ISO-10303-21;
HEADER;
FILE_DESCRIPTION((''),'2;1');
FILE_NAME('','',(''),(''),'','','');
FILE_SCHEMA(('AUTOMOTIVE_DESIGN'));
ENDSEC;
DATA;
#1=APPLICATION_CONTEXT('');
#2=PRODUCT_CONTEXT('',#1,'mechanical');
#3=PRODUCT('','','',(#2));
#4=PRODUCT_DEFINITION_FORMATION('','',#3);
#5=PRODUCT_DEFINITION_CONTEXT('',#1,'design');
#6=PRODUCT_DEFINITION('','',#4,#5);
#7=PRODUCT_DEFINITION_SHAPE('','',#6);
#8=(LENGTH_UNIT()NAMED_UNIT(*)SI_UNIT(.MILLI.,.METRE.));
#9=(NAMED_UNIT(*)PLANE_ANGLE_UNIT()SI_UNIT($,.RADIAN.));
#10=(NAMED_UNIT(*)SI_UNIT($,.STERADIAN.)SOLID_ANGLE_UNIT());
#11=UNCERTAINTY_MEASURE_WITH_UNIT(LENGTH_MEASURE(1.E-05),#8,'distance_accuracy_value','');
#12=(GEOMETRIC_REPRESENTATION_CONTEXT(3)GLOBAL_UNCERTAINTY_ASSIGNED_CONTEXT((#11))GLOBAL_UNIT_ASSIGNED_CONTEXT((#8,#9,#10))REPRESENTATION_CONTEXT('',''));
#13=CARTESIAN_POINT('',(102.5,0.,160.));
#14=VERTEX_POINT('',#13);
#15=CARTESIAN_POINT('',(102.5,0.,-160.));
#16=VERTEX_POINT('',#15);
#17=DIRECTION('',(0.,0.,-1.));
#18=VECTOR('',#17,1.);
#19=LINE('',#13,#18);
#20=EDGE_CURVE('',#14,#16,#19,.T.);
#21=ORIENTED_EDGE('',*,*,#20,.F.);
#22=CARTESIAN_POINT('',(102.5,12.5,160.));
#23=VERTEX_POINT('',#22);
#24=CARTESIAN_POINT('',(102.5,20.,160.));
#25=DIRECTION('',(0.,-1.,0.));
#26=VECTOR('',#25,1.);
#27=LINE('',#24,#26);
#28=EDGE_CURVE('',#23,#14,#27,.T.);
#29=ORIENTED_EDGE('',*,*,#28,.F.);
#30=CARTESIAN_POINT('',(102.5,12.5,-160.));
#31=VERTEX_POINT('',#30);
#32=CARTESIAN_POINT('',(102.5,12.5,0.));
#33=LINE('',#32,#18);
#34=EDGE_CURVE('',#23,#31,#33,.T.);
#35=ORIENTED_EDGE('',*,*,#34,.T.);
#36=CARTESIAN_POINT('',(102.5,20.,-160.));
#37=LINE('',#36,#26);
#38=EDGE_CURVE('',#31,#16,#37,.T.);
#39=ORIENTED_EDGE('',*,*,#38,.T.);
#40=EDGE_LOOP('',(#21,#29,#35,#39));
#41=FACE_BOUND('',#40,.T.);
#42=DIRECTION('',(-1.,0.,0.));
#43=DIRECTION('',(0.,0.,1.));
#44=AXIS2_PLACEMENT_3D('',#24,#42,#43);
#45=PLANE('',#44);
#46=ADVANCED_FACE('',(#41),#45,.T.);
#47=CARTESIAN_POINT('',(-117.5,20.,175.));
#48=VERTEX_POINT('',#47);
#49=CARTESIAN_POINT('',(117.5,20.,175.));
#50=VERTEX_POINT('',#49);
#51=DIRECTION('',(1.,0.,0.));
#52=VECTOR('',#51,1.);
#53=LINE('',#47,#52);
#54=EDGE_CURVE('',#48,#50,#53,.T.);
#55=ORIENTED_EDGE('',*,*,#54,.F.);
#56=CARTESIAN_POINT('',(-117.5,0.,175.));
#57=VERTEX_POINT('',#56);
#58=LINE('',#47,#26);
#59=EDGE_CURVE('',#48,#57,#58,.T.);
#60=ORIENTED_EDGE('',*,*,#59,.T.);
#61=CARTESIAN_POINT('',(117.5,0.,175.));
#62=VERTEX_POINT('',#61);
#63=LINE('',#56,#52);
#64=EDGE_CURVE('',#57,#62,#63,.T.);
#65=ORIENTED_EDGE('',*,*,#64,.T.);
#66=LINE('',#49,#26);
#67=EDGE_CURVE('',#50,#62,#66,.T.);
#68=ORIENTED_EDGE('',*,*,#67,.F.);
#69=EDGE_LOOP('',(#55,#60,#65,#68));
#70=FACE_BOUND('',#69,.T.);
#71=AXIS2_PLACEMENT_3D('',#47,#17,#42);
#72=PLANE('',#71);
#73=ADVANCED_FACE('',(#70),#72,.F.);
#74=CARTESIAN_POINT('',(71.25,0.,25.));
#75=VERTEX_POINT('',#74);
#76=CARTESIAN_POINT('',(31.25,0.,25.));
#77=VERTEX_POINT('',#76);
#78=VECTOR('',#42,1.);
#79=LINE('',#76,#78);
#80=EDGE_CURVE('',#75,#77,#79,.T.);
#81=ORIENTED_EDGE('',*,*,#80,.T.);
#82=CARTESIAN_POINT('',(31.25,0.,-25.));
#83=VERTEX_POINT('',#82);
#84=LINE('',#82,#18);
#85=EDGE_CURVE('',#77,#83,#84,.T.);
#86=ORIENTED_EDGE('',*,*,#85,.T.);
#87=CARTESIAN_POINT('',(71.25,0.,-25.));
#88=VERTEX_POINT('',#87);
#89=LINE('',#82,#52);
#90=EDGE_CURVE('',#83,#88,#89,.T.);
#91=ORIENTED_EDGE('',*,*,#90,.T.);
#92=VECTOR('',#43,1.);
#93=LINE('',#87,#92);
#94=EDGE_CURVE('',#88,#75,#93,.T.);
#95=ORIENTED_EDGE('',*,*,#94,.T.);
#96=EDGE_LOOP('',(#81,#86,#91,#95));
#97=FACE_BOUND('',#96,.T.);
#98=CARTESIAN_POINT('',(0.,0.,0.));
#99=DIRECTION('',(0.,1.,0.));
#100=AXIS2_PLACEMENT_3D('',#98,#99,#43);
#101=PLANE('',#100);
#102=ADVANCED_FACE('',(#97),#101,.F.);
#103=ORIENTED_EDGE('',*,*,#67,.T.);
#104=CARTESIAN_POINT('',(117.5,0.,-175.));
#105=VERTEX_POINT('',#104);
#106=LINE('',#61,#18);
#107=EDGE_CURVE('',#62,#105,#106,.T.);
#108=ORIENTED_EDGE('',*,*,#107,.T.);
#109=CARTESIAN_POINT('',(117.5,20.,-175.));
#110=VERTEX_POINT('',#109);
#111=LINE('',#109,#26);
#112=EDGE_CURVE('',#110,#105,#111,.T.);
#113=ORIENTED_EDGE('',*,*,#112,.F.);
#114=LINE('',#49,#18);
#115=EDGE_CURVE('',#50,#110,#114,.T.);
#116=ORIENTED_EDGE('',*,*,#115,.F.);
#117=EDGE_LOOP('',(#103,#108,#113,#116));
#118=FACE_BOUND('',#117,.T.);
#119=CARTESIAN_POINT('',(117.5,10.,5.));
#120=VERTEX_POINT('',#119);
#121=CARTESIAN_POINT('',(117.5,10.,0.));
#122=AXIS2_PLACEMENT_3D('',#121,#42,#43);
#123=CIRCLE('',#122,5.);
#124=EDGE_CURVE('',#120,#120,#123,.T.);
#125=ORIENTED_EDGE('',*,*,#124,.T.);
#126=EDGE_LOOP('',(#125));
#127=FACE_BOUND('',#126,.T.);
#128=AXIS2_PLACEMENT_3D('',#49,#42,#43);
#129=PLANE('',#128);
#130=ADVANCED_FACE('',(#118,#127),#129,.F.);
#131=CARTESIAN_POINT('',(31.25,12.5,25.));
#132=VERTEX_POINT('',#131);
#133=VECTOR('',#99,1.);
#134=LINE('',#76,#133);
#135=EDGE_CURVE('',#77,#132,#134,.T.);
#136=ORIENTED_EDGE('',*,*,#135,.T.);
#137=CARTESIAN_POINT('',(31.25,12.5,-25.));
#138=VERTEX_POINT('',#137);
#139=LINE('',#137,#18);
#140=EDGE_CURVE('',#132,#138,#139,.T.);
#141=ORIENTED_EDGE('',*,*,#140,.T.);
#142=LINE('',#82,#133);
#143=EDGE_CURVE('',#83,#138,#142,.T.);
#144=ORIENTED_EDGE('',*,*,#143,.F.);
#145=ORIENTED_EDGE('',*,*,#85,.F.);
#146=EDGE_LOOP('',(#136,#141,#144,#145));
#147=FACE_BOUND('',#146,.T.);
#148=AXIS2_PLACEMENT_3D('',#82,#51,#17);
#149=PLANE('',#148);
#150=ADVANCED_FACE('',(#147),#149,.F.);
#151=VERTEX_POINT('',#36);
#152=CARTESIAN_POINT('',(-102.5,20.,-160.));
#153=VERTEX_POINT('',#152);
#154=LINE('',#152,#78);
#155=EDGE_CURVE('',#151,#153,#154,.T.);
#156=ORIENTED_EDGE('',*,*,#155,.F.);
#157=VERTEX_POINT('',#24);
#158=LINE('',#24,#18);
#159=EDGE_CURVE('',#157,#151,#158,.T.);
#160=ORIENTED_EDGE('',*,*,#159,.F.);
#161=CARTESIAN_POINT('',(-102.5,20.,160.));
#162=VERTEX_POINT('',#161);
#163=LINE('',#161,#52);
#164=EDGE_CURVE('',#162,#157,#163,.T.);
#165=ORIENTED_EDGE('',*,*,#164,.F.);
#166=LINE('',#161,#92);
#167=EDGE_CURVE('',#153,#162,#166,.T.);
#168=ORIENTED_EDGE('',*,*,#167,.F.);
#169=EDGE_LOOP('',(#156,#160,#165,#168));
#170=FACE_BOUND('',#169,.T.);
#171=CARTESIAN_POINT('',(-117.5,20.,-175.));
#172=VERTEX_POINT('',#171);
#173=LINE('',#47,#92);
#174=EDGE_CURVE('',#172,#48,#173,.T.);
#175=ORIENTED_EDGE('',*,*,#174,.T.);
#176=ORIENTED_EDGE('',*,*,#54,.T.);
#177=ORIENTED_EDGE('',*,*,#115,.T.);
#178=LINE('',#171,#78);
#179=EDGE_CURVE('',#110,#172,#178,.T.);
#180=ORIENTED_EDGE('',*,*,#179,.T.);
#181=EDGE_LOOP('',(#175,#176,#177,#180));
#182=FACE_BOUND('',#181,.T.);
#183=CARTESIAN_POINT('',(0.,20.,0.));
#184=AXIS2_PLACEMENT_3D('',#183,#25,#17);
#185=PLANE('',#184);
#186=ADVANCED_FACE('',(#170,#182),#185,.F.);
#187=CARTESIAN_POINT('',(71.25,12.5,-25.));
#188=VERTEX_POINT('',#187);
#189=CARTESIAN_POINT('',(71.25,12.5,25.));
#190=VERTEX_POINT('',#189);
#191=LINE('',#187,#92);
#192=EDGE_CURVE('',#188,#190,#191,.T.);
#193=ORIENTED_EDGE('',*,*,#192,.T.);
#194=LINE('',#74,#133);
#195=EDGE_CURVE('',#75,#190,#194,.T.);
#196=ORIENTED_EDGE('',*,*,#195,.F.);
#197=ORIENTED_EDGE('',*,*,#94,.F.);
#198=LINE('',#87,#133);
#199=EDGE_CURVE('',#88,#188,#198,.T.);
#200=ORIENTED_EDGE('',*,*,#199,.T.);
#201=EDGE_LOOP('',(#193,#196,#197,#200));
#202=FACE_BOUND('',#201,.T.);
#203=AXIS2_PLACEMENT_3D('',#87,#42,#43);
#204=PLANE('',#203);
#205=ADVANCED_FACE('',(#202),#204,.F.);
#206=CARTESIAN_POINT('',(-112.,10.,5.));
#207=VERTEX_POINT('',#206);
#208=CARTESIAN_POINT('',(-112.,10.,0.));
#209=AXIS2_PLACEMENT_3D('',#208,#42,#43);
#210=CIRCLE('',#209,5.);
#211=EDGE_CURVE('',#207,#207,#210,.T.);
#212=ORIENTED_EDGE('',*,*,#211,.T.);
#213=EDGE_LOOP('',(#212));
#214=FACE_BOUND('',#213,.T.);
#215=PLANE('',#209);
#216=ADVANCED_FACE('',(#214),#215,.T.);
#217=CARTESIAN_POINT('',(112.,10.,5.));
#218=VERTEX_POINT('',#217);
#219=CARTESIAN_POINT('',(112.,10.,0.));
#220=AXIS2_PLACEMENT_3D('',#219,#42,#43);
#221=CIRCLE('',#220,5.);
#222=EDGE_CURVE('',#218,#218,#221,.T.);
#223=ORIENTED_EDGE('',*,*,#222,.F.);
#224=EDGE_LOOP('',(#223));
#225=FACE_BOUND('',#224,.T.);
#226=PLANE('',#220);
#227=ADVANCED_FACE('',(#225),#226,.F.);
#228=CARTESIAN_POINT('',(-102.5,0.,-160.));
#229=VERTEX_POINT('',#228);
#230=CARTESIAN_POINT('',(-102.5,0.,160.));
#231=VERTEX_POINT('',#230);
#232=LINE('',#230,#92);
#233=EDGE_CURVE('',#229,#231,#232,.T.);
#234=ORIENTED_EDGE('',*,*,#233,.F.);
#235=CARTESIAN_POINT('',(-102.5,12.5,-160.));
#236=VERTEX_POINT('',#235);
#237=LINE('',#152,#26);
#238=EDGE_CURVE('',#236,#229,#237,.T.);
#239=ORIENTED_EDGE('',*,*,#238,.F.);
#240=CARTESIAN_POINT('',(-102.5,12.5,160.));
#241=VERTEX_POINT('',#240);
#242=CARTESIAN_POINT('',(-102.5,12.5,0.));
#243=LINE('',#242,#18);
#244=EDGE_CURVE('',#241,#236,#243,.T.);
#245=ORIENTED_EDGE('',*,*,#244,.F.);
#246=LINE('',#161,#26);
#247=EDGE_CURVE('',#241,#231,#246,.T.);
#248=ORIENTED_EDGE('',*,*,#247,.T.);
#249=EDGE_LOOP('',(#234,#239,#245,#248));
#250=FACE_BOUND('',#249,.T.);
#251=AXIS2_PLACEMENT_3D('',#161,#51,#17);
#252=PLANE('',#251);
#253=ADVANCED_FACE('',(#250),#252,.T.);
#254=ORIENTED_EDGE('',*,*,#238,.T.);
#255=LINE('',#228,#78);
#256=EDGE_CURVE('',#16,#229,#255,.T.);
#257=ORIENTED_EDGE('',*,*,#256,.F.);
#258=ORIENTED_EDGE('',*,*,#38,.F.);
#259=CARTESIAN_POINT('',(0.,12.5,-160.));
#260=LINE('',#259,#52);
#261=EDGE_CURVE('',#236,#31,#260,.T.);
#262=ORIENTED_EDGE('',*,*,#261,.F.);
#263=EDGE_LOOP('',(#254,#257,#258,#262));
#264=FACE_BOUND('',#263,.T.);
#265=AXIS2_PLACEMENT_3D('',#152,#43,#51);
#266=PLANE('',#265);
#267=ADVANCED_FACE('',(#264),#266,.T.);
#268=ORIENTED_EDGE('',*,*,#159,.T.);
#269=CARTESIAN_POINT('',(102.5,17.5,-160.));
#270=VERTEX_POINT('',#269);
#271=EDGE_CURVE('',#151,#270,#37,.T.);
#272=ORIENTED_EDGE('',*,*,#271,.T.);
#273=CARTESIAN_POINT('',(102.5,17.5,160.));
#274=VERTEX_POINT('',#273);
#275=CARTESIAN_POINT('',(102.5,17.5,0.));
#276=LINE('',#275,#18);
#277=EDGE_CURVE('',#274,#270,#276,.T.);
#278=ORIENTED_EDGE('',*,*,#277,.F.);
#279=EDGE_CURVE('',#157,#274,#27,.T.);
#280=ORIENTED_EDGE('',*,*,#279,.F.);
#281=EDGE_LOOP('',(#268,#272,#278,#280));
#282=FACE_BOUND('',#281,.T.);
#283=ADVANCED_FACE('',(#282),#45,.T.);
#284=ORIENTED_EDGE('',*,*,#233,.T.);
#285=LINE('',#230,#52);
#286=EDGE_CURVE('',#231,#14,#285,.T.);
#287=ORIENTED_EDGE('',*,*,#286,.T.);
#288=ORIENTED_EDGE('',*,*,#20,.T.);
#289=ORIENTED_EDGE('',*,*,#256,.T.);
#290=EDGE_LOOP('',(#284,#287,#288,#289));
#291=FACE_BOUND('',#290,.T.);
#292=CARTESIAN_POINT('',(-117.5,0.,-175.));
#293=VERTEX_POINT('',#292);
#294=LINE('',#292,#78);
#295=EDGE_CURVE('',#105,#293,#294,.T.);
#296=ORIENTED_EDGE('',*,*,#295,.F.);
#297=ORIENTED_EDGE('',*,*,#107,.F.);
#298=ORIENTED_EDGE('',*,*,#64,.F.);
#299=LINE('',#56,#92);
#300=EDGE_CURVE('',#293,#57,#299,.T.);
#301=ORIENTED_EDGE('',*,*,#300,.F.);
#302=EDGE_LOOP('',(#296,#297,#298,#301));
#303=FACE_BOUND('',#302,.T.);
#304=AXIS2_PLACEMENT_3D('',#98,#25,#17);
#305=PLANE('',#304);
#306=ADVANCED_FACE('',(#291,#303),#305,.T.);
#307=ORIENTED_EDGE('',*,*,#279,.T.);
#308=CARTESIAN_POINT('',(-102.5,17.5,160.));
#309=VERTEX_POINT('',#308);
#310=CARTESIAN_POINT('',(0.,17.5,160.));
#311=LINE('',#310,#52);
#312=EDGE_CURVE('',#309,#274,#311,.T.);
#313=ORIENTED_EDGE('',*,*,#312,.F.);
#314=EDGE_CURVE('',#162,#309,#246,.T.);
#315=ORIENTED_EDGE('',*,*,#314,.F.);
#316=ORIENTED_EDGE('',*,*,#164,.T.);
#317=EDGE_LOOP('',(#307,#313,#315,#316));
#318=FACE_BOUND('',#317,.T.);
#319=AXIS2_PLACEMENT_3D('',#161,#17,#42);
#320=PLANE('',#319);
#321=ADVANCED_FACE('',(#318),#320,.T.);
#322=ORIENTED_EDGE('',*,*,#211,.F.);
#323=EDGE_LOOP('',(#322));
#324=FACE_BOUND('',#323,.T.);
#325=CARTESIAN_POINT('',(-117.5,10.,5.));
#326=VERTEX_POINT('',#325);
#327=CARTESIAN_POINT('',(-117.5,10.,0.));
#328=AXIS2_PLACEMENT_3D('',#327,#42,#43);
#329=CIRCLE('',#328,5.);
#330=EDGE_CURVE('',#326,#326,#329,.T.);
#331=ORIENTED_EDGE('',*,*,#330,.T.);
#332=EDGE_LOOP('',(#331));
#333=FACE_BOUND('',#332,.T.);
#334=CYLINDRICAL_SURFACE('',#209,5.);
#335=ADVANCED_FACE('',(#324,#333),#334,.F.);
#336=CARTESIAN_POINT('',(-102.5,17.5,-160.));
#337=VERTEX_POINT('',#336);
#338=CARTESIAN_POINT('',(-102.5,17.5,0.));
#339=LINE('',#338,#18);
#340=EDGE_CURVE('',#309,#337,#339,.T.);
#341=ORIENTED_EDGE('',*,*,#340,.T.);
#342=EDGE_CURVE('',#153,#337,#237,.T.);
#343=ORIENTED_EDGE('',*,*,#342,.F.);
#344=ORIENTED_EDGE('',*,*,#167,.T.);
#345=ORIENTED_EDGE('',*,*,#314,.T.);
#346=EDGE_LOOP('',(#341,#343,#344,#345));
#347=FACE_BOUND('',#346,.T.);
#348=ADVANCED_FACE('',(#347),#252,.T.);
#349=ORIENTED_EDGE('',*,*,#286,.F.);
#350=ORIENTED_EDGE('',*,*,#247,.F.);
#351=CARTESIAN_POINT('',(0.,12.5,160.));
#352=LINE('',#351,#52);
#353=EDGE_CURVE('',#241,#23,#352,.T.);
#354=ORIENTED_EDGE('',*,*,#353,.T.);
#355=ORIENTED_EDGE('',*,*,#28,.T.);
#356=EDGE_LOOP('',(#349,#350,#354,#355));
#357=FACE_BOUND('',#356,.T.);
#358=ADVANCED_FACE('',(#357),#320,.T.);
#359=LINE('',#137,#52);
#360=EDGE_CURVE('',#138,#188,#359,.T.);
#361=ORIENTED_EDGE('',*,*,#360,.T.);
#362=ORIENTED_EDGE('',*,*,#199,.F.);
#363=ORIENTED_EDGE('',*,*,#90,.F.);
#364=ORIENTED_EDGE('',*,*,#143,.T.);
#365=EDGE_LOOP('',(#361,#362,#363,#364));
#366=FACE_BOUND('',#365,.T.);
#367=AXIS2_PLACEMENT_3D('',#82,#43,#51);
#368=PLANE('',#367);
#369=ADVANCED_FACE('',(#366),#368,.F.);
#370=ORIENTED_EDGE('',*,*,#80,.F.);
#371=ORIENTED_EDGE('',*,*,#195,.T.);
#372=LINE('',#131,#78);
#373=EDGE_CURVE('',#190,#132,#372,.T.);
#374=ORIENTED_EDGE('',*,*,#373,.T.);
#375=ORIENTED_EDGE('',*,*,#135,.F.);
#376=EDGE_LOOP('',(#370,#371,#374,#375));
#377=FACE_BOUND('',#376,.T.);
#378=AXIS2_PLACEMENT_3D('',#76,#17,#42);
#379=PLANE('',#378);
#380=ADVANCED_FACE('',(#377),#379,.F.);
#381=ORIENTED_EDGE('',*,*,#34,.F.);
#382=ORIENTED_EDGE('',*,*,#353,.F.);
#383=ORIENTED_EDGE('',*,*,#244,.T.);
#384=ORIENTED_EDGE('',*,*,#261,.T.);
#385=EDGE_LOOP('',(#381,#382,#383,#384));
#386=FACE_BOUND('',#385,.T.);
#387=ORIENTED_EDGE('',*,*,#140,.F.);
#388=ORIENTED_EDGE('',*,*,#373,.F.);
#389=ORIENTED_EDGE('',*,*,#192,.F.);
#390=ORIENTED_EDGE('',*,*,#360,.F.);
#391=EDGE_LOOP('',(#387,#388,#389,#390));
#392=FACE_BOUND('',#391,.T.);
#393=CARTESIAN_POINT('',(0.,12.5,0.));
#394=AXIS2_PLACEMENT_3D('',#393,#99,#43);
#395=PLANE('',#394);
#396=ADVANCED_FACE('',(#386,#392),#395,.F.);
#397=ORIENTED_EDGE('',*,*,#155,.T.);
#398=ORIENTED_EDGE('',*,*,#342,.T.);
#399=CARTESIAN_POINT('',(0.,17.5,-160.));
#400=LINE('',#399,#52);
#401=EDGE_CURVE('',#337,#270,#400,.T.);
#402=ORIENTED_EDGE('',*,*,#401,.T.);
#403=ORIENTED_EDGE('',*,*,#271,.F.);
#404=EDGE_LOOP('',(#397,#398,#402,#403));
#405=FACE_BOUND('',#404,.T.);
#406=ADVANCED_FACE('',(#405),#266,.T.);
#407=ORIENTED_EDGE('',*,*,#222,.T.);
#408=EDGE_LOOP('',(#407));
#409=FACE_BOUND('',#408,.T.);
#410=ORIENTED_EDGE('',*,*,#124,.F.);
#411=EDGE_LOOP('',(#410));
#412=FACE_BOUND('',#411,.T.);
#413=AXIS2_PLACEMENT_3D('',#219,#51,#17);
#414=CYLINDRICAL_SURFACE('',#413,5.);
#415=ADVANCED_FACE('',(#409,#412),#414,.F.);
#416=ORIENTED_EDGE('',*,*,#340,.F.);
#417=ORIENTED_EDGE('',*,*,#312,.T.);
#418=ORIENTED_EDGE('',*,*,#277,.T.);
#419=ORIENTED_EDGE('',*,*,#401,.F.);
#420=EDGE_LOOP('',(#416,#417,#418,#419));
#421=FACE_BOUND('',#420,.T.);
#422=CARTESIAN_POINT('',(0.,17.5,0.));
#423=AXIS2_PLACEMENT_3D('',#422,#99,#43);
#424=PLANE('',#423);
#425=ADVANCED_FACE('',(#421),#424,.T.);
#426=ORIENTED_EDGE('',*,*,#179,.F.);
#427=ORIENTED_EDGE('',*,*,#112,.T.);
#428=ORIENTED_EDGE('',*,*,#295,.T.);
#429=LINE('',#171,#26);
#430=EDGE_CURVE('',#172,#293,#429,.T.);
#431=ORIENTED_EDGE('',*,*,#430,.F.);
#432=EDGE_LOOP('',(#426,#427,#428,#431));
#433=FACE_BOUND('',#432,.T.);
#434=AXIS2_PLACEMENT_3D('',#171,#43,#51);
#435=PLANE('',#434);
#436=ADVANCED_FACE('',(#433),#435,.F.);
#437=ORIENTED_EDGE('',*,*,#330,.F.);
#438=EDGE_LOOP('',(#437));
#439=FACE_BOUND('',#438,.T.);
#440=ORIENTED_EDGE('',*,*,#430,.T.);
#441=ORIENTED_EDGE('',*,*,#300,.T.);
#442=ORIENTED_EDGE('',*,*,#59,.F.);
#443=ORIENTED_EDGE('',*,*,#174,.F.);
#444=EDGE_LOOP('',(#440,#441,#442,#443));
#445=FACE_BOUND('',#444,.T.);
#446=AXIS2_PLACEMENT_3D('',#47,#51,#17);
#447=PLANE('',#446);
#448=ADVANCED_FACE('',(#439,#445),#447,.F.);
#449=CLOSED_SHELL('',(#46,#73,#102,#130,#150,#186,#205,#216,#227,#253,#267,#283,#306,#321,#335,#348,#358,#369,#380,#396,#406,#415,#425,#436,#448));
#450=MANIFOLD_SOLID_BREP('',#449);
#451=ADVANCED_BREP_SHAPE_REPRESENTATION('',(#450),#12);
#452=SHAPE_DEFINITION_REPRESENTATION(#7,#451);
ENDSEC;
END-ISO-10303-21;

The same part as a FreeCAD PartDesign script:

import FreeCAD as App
import Part
import Sketcher

V = App.Vector

doc = App.newDocument("Part")
body = doc.addObject("PartDesign::Body", "Body")

sketch1 = body.newObject("Sketcher::SketchObject", "Sketch")
sketch1.AttachmentSupport = (doc.getObject("XZ_Plane"), [""])
sketch1.MapMode = "FlatFace"
sketch1.addGeometry([
    Part.LineSegment(V(-118, -175, 0), V(-118, 175, 0)),
    Part.LineSegment(V(-118, 175, 0), V(118, 175, 0)),
    Part.LineSegment(V(118, 175, 0), V(118, -175, 0)),
    Part.LineSegment(V(118, -175, 0), V(-118, -175, 0)),
    Part.LineSegment(V(102, 160, 0), V(-102, 160, 0)),
    Part.LineSegment(V(-102, 160, 0), V(-102, -160, 0)),
    Part.LineSegment(V(-102, -160, 0), V(102, -160, 0)),
    Part.LineSegment(V(102, -160, 0), V(102, 160, 0)),
], False)
sketch1.addConstraint([
    Sketcher.Constraint("Coincident", 0, 2, 1, 1),
    Sketcher.Constraint("Coincident", 1, 2, 2, 1),
    Sketcher.Constraint("Coincident", 2, 2, 3, 1),
    Sketcher.Constraint("Coincident", 3, 2, 0, 1),
    Sketcher.Constraint("Coincident", 4, 2, 5, 1),
    Sketcher.Constraint("Coincident", 5, 2, 6, 1),
    Sketcher.Constraint("Coincident", 6, 2, 7, 1),
    Sketcher.Constraint("Coincident", 7, 2, 4, 1),
    Sketcher.Constraint("Vertical", 0),
    Sketcher.Constraint("Horizontal", 1),
    Sketcher.Constraint("Vertical", 2),
    Sketcher.Constraint("Horizontal", 3),
    Sketcher.Constraint("Horizontal", 4),
    Sketcher.Constraint("Vertical", 5),
    Sketcher.Constraint("Horizontal", 6),
    Sketcher.Constraint("Vertical", 7),
    Sketcher.Constraint("Symmetric", 0, 2, 2, 2, -1, 1),
    Sketcher.Constraint("Symmetric", 4, 2, 6, 2, -1, 1),
    Sketcher.Constraint("DistanceX", 1, 1, 1, 2, 235.0),
    Sketcher.Constraint("DistanceX", 4, 2, 4, 1, 205.0),
    Sketcher.Constraint("DistanceY", 0, 1, 0, 2, 350.0),
    Sketcher.Constraint("DistanceY", 5, 2, 5, 1, 320.0),
])
pad1 = body.newObject("PartDesign::Pad", "Pad")
pad1.Profile = sketch1
pad1.Length = 20
pad1.Reversed = True

sketch2 = body.newObject("Sketcher::SketchObject", "Sketch001")
sketch2.AttachmentSupport = (doc.getObject("XZ_Plane"), [""])
sketch2.MapMode = "FlatFace"
sketch2.AttachmentOffset = App.Placement(V(0, 0, -15), App.Rotation())
sketch2.addGeometry([
    Part.LineSegment(V(-102, -160, 0), V(-102, 160, 0)),
    Part.LineSegment(V(-102, 160, 0), V(102, 160, 0)),
    Part.LineSegment(V(102, 160, 0), V(102, -160, 0)),
    Part.LineSegment(V(102, -160, 0), V(-102, -160, 0)),
], False)
sketch2.addConstraint([
    Sketcher.Constraint("Coincident", 0, 2, 1, 1),
    Sketcher.Constraint("Coincident", 1, 2, 2, 1),
    Sketcher.Constraint("Coincident", 2, 2, 3, 1),
    Sketcher.Constraint("Coincident", 3, 2, 0, 1),
    Sketcher.Constraint("Vertical", 0),
    Sketcher.Constraint("Horizontal", 1),
    Sketcher.Constraint("Vertical", 2),
    Sketcher.Constraint("Horizontal", 3),
    Sketcher.Constraint("Symmetric", 0, 2, 2, 2, -1, 1),
    Sketcher.Constraint("DistanceX", 1, 1, 1, 2, 205.0),
    Sketcher.Constraint("DistanceY", 0, 1, 0, 2, 320.0),
])
pad2 = body.newObject("PartDesign::Pad", "Pad001")
pad2.Profile = sketch2
pad2.Type = "TwoLengths"
pad2.Length = 2.5
pad2.Length2 = 2.5
pad2.Reversed = True

sketch3 = body.newObject("Sketcher::SketchObject", "Sketch002")
sketch3.AttachmentSupport = (doc.getObject("XZ_Plane"), [""])
sketch3.MapMode = "FlatFace"
sketch3.AttachmentOffset = App.Placement(V(0, 0, -12.5), App.Rotation())
sketch3.addGeometry([
    Part.LineSegment(V(31, 25, 0), V(31, -25, 0)),
    Part.LineSegment(V(31, -25, 0), V(71, -25, 0)),
    Part.LineSegment(V(71, -25, 0), V(71, 25, 0)),
    Part.LineSegment(V(71, 25, 0), V(31, 25, 0)),
], False)
sketch3.addConstraint([
    Sketcher.Constraint("Coincident", 0, 2, 1, 1),
    Sketcher.Constraint("Coincident", 1, 2, 2, 1),
    Sketcher.Constraint("Coincident", 2, 2, 3, 1),
    Sketcher.Constraint("Coincident", 3, 2, 0, 1),
    Sketcher.Constraint("Vertical", 0),
    Sketcher.Constraint("Horizontal", 1),
    Sketcher.Constraint("Vertical", 2),
    Sketcher.Constraint("Horizontal", 3),
    Sketcher.Constraint("DistanceX", 1, 1, 1, 2, 40.0),
    Sketcher.Constraint("DistanceY", 0, 2, 0, 1, 50.0),
    Sketcher.Constraint("DistanceY", 0, 2, -1, 1, 25.0),
    Sketcher.Constraint("DistanceX", -1, 1, 0, 2, 31.25),
])
pad3 = body.newObject("PartDesign::Pad", "Pad002")
pad3.Profile = sketch3
pad3.Length = 12.5

sketch4 = body.newObject("Sketcher::SketchObject", "Sketch003")
sketch4.AttachmentSupport = (doc.getObject("YZ_Plane"), [""])
sketch4.MapMode = "FlatFace"
sketch4.AttachmentOffset = App.Placement(V(0, 0, -117.5), App.Rotation())
sketch4.addGeometry(Part.Circle(V(10, 0, 0), V(0, 0, 1), 5), False)
sketch4.addConstraint([
    Sketcher.Constraint("PointOnObject", 0, 3, -1),
    Sketcher.Constraint("Diameter", 0, 10.0),
    Sketcher.Constraint("DistanceX", -1, 1, 0, 3, 10.0),
])
pocket1 = body.newObject("PartDesign::Pocket", "Pocket")
pocket1.Profile = sketch4
pocket1.Length = 5.5
pocket1.Reversed = True

sketch5 = body.newObject("Sketcher::SketchObject", "Sketch004")
sketch5.AttachmentSupport = (doc.getObject("YZ_Plane"), [""])
sketch5.MapMode = "FlatFace"
sketch5.AttachmentOffset = App.Placement(V(0, 0, 117.5), App.Rotation())
sketch5.addGeometry(Part.Circle(V(10, 0, 0), V(0, 0, 1), 5), False)
sketch5.addConstraint([
    Sketcher.Constraint("PointOnObject", 0, 3, -1),
    Sketcher.Constraint("Diameter", 0, 10.0),
    Sketcher.Constraint("DistanceX", -1, 1, 0, 3, 10.0),
])
pocket2 = body.newObject("PartDesign::Pocket", "Pocket001")
pocket2.Profile = sketch5
pocket2.Length = 5.5

doc.recompute()
